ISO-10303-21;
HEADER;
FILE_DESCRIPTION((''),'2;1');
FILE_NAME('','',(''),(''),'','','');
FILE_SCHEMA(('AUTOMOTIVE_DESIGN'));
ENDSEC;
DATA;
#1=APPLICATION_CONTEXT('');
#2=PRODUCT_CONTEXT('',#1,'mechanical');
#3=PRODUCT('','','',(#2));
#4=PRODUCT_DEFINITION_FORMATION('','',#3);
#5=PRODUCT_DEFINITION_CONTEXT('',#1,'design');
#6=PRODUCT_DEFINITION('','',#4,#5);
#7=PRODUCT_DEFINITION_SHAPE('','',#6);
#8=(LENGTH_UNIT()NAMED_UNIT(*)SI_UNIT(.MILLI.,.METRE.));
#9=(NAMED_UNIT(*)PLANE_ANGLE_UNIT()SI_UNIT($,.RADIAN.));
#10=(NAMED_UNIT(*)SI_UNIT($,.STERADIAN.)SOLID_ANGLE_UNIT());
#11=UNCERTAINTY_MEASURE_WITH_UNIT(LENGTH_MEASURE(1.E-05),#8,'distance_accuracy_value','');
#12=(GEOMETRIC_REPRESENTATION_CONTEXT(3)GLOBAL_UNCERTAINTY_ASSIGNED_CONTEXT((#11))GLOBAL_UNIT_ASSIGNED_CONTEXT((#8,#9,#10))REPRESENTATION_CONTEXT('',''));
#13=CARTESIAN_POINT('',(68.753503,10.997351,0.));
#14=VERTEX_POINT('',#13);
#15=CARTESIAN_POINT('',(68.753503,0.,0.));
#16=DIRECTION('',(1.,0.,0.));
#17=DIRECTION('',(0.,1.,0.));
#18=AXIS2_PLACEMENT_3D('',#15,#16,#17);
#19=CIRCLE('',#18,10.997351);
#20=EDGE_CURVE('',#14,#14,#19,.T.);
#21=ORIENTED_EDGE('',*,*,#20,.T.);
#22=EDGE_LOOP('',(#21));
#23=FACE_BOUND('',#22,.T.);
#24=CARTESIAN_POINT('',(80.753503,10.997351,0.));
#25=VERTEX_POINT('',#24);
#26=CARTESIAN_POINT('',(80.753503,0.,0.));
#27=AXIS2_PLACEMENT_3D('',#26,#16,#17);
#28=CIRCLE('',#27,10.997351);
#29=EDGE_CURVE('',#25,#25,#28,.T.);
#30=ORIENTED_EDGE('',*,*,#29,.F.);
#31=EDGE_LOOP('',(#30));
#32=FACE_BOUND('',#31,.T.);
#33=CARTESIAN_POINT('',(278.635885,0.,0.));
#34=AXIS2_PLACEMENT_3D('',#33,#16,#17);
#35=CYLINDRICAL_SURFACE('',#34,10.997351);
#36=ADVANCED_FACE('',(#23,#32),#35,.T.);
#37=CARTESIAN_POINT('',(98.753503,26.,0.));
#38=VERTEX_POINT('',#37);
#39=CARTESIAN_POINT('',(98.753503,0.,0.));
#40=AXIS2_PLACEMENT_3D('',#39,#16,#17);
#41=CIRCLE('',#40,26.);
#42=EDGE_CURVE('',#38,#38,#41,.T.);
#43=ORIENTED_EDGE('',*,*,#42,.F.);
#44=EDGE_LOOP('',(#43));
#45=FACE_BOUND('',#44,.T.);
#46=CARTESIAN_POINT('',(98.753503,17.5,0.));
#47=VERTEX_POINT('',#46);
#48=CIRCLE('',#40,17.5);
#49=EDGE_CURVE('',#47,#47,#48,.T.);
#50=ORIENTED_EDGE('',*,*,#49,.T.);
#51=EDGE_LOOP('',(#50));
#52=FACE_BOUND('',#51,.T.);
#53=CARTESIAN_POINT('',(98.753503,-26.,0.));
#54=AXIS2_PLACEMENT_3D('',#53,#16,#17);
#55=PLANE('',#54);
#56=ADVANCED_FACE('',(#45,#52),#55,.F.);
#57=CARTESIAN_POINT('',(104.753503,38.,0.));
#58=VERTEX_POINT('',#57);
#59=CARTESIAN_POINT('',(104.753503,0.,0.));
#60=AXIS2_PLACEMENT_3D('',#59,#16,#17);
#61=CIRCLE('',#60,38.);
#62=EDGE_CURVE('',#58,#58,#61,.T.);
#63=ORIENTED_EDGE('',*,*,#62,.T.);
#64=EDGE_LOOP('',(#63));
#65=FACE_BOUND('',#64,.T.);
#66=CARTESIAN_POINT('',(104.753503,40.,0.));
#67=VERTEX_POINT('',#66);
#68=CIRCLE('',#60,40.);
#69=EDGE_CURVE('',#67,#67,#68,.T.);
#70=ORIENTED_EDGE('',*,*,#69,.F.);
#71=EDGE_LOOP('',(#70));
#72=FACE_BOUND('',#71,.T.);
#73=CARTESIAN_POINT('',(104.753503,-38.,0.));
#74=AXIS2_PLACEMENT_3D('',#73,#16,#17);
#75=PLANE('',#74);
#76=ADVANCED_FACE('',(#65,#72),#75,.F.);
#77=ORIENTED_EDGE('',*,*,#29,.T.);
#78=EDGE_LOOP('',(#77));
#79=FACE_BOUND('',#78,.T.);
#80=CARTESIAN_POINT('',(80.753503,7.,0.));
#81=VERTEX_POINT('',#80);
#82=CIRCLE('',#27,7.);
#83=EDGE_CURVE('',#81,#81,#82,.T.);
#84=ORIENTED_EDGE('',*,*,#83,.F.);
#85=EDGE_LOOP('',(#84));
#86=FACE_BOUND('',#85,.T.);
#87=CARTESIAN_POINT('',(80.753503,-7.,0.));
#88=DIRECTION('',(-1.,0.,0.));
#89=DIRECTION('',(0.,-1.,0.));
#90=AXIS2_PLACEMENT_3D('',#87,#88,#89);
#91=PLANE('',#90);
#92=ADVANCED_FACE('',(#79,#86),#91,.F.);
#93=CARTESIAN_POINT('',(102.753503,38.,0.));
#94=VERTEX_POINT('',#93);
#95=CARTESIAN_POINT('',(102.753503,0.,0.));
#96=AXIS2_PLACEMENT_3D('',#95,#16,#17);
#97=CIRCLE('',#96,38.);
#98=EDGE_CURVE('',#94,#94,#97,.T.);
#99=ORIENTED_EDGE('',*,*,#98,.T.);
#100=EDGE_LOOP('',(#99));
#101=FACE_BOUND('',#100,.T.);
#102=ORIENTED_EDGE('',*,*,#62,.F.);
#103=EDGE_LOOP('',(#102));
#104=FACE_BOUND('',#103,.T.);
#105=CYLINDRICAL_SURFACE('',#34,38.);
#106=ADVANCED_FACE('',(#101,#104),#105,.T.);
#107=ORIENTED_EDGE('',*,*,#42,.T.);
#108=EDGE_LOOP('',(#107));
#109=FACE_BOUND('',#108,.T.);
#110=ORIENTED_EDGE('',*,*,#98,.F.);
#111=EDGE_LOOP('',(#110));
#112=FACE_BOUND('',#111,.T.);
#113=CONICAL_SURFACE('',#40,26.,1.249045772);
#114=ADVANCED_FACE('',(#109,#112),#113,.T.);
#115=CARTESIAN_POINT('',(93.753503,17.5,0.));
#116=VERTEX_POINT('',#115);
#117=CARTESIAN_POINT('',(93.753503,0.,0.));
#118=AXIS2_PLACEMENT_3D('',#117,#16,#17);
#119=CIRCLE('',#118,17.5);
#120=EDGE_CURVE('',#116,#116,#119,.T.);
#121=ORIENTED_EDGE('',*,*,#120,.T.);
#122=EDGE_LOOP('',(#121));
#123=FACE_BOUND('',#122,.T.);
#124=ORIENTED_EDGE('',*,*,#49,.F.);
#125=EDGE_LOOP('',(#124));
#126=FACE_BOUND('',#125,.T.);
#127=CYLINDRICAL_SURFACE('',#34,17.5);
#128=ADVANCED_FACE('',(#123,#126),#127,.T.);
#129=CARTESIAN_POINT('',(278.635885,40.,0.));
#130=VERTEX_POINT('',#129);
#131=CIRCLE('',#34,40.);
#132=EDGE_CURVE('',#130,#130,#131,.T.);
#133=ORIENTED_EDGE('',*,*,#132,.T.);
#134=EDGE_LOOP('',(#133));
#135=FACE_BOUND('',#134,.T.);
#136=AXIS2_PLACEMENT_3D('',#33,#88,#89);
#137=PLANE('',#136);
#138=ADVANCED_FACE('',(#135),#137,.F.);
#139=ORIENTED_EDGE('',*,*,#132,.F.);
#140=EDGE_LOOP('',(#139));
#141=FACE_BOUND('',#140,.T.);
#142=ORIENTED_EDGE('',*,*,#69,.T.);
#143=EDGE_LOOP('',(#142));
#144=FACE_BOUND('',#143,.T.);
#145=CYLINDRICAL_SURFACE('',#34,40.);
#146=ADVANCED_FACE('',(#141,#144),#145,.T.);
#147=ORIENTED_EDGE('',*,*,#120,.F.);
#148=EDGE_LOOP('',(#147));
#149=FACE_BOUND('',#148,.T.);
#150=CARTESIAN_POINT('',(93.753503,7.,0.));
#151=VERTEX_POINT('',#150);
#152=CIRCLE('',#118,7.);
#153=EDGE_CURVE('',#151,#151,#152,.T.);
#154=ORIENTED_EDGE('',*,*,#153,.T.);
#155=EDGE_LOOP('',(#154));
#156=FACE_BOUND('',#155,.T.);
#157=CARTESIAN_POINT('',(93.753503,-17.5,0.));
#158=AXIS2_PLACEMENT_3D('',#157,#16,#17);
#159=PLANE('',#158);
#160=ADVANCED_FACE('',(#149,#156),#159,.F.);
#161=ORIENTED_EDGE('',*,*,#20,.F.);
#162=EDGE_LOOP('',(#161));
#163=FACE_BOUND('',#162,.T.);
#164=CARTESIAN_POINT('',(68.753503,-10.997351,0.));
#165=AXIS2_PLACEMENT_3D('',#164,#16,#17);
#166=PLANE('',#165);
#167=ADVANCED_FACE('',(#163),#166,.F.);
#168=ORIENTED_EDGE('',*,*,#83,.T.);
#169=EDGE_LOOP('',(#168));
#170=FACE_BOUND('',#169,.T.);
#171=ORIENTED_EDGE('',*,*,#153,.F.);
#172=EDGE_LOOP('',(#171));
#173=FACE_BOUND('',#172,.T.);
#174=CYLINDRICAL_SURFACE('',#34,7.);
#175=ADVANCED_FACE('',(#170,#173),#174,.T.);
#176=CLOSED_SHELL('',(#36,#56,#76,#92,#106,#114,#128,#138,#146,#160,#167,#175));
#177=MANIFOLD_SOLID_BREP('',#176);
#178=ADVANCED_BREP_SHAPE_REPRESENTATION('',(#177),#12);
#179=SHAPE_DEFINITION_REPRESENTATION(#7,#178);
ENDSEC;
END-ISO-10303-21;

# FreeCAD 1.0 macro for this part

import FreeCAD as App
import Part
import Sketcher
from FreeCAD import Vector


def add_polygon(sketch, points):
    """Adds a closed chain of lines whose ends are joined by coincident constraints."""
    first, n = sketch.GeometryCount, len(points)
    for a, b in zip(points, points[1:] + points[:1]):
        sketch.addGeometry(Part.LineSegment(App.Vector(*a, 0), App.Vector(*b, 0)), False)
    for i in range(n):
        sketch.addConstraint(Sketcher.Constraint("Coincident", first + i, 2, first + (i + 1) % n, 1))

doc = App.newDocument("Part")
body = doc.addObject("PartDesign::Body", "Body")

# Sketch on XY plane
sketch1 = doc.addObject("Sketcher::SketchObject", "Sketch")
body.addObject(sketch1)
sketch1.AttachmentSupport = (doc.XY_Plane, [""])
sketch1.MapMode = "FlatFace"
add_polygon(sketch1, [(278.635885, -40), (278.635885, 0), (68.753503, 0), (68.753503, -10.997351), (80.753503, -10.997351), (80.753503, -7), (93.753503, -7), (93.753503, -17.5), (98.753503, -17.5), (98.753503, -26), (102.753503, -38), (104.753503, -38), (104.753503, -40)])  # lines 0-12
sketch1.addConstraint([
    Sketcher.Constraint("Vertical", 0),
    Sketcher.Constraint("Horizontal", 1),
    Sketcher.Constraint("Vertical", 2),
    Sketcher.Constraint("Horizontal", 3),
    Sketcher.Constraint("Vertical", 4),
    Sketcher.Constraint("Horizontal", 5),
    Sketcher.Constraint("Vertical", 6),
    Sketcher.Constraint("Horizontal", 7),
    Sketcher.Constraint("Vertical", 8),
    Sketcher.Constraint("Horizontal", 10),
    Sketcher.Constraint("Vertical", 11),
    Sketcher.Constraint("Horizontal", 12),
    Sketcher.Constraint("PointOnObject", 0, 2, -1),
    Sketcher.Constraint("Equal", 10, 11),
    Sketcher.Constraint("DistanceX", 3, 1, 3, 2, 12.0),
    Sketcher.Constraint("DistanceX", 5, 1, 5, 2, 13.0),
    Sketcher.Constraint("DistanceX", 7, 1, 7, 2, 5.0),
    Sketcher.Constraint("DistanceX", 10, 1, 10, 2, 2.0),
    Sketcher.Constraint("DistanceY", 0, 1, 0, 2, 40.0),
    Sketcher.Constraint("DistanceY", 6, 2, 6, 1, 10.5),
    Sketcher.Constraint("DistanceY", 8, 2, 8, 1, 8.5),
    Sketcher.Constraint("DistanceY", 4, 2, -1, 1, 7.0),
    Sketcher.Constraint("DistanceX", 8, 2, 9, 2, 4.0),
    Sketcher.Constraint("DistanceX", 1, 2, 1, 1, 209.882381),
    Sketcher.Constraint("DistanceY", 2, 2, 2, 1, 10.997351),
    Sketcher.Constraint("DistanceX", -1, 1, 0, 2, 278.635885),
])
revolution = doc.addObject("PartDesign::Revolution", "Revolution")
body.addObject(revolution)
revolution.Profile = sketch1
revolution.ReferenceAxis = (sketch1, ["H_Axis"])
revolution.Angle = 360

doc.recompute()
